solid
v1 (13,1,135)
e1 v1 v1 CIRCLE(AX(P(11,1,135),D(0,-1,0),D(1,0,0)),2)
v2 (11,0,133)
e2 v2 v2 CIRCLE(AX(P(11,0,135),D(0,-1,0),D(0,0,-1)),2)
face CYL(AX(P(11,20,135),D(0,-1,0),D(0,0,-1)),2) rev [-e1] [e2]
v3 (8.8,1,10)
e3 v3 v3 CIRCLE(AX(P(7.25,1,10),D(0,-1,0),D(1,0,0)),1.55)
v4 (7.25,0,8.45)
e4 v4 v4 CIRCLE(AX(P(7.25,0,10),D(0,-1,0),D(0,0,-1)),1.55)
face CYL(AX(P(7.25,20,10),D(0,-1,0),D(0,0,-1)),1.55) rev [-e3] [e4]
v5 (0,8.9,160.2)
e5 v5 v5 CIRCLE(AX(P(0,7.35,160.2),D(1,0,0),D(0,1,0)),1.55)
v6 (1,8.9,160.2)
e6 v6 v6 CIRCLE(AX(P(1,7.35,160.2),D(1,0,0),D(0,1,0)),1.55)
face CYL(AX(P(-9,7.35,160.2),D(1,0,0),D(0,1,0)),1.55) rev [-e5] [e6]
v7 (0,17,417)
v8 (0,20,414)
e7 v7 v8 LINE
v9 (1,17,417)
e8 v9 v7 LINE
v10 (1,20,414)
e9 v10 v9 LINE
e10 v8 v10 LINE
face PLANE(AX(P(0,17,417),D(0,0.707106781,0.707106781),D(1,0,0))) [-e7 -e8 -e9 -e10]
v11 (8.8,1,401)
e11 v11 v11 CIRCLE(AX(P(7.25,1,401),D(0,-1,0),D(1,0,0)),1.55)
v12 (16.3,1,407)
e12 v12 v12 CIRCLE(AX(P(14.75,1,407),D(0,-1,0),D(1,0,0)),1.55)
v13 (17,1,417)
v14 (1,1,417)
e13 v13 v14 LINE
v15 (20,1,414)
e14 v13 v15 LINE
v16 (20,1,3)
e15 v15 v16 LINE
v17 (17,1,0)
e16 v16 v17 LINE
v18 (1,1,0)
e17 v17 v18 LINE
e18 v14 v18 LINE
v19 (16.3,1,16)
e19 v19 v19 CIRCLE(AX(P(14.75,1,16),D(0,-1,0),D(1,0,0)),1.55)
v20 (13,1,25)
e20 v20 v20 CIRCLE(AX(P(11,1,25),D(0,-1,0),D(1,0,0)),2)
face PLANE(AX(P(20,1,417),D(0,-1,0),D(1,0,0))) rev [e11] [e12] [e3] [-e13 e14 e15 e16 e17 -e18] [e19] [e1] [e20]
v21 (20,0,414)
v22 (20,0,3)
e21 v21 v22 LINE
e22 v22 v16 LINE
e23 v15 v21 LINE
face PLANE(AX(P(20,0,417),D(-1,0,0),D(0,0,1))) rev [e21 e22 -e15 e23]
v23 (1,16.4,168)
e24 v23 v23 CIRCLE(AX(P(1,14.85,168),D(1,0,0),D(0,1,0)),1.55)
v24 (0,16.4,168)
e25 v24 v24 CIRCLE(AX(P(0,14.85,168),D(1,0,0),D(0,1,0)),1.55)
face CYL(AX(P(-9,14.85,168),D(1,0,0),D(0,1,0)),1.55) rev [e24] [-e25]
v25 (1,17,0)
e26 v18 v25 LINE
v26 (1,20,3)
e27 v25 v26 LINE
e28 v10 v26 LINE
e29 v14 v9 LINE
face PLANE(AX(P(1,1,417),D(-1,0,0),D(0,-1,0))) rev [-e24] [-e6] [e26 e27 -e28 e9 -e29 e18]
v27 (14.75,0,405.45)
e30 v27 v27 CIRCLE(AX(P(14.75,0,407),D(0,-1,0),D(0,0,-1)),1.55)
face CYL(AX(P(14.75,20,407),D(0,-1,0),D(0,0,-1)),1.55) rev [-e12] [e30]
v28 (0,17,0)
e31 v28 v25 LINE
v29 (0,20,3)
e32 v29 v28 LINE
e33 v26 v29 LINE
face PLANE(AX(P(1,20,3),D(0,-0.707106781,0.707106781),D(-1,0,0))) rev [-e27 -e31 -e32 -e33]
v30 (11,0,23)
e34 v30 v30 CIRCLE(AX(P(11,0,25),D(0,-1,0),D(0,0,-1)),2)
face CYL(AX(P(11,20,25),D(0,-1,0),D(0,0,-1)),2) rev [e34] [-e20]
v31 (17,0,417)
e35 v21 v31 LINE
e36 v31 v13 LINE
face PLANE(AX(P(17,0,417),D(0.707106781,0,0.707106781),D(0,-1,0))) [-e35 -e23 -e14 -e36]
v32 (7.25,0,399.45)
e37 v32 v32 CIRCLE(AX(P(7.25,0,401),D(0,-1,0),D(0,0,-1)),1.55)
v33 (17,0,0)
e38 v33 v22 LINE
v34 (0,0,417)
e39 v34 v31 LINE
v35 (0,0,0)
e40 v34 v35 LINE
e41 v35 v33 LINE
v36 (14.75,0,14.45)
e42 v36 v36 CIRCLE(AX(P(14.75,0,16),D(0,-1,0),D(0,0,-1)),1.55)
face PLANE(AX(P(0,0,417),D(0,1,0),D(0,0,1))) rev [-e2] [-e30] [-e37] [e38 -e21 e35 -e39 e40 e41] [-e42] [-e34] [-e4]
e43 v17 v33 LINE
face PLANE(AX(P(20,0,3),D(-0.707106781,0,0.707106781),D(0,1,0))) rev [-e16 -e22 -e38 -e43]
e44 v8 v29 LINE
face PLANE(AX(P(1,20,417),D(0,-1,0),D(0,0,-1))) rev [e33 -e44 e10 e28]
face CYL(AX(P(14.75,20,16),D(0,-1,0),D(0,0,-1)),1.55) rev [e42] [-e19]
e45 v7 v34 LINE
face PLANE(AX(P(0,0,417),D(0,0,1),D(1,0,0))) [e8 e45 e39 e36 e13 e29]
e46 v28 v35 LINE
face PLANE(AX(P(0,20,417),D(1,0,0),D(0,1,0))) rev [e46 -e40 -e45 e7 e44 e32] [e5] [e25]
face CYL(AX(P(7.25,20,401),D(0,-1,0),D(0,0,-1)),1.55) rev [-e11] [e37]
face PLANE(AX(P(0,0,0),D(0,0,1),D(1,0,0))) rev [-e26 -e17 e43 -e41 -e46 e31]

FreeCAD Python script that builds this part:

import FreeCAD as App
import Part
import Sketcher
from FreeCAD import Vector


def edges_at(feature, points):
    """Names of the edges that pass closest to the given points."""
    edges = feature.Shape.Edges
    near = lambda p: min(range(len(edges)), key=lambda i: edges[i].distToShape(Part.Vertex(*p))[0])
    return sorted({f"Edge{near(p) + 1}" for p in points})


def add_polygon(sketch, points):
    """Adds a closed chain of lines whose ends are joined by coincident constraints."""
    first, n = sketch.GeometryCount, len(points)
    for a, b in zip(points, points[1:] + points[:1]):
        sketch.addGeometry(Part.LineSegment(App.Vector(*a, 0), App.Vector(*b, 0)), False)
    for i in range(n):
        sketch.addConstraint(Sketcher.Constraint("Coincident", first + i, 2, first + (i + 1) % n, 1))

doc = App.newDocument("Part")
body = doc.addObject("PartDesign::Body", "Body")

# Sketch on XY plane
sketch1 = body.newObject("Sketcher::SketchObject", "Sketch")
sketch1.AttachmentSupport = (doc.getObject("XY_Plane"), [""])
sketch1.MapMode = "FlatFace"
add_polygon(sketch1, [(0, 0), (20, 0), (20, 1), (1, 1), (1, 20), (0, 20)])  # lines 0-5
sketch1.addConstraint(Sketcher.Constraint("Horizontal", 0))
sketch1.addConstraint(Sketcher.Constraint("Vertical", 1))
sketch1.addConstraint(Sketcher.Constraint("Horizontal", 2))
sketch1.addConstraint(Sketcher.Constraint("Vertical", 3))
sketch1.addConstraint(Sketcher.Constraint("Horizontal", 4))
sketch1.addConstraint(Sketcher.Constraint("Vertical", 5))
sketch1.addConstraint(Sketcher.Constraint("Coincident", 5, 2, -1, 1))
sketch1.addConstraint(Sketcher.Constraint("Equal", 4, 1))
sketch1.addConstraint(Sketcher.Constraint("Equal", 2, 3))
sketch1.addConstraint(Sketcher.Constraint("DistanceX", 0, 1, 0, 2, 20.0))
sketch1.addConstraint(Sketcher.Constraint("DistanceX", 2, 2, 2, 1, 19.0))
pad1 = body.newObject("PartDesign::Pad", "Pad")
pad1.Profile = sketch1
pad1.Length = 417
doc.recompute()

chamfer = body.newObject("PartDesign::Chamfer", "Chamfer")
chamfer.Base = (pad1, edges_at(pad1, [
    (20, 0.5, 417),
    (0.5, 20, 417),
    (0.5, 20, 0),
    (20, 0.5, 0),
]))
chamfer.Size = 3

# Sketch on YZ plane
sketch2 = body.newObject("Sketcher::SketchObject", "Sketch001")
sketch2.AttachmentSupport = (doc.getObject("YZ_Plane"), [""])
sketch2.MapMode = "FlatFace"
sketch2.AttachmentOffset = App.Placement(Vector(0, 0, 1), App.Rotation())
sketch2.addGeometry(Part.Circle(Vector(14.85, 168, 0), Vector(0, 0, 1), 1.55), False)
sketch2.addGeometry(Part.Circle(Vector(7.35, 160.2, 0), Vector(0, 0, 1), 1.55), False)
sketch2.addConstraint(Sketcher.Constraint("Equal", 0, 1))
sketch2.addConstraint(Sketcher.Constraint("Diameter", 0, 3.1))
sketch2.addConstraint(Sketcher.Constraint("DistanceY", -1, 1, 0, 3, 168.0))
sketch2.addConstraint(Sketcher.Constraint("DistanceY", -1, 1, 1, 3, 160.2))
sketch2.addConstraint(Sketcher.Constraint("DistanceX", 1, 3, 0, 3, 7.5))
sketch2.addConstraint(Sketcher.Constraint("DistanceX", -1, 1, 0, 3, 14.85))
pocket1 = body.newObject("PartDesign::Pocket", "Pocket")
pocket1.Profile = sketch2
pocket1.Length = 10

# Sketch on XZ plane
sketch3 = body.newObject("Sketcher::SketchObject", "Sketch002")
sketch3.AttachmentSupport = (doc.getObject("XZ_Plane"), [""])
sketch3.MapMode = "FlatFace"
sketch3.addGeometry(Part.Circle(Vector(7.25, 10, 0), Vector(0, 0, 1), 1.55), False)
sketch3.addGeometry(Part.Circle(Vector(14.75, 16, 0), Vector(0, 0, 1), 1.55), False)
sketch3.addGeometry(Part.Circle(Vector(7.25, 401, 0), Vector(0, 0, 1), 1.55), False)
sketch3.addGeometry(Part.Circle(Vector(14.75, 407, 0), Vector(0, 0, 1), 1.55), False)
sketch3.addConstraint(Sketcher.Constraint("Equal", 0, 1))
sketch3.addConstraint(Sketcher.Constraint("Equal", 1, 2))
sketch3.addConstraint(Sketcher.Constraint("Equal", 2, 3))
sketch3.addConstraint(Sketcher.Constraint("Vertical", 0, 3, 2, 3))
sketch3.addConstraint(Sketcher.Constraint("Vertical", 1, 3, 3, 3))
sketch3.addConstraint(Sketcher.Constraint("Diameter", 0, 3.1))
sketch3.addConstraint(Sketcher.Constraint("DistanceY", -1, 1, 0, 3, 10.0))
sketch3.addConstraint(Sketcher.Constraint("DistanceY", -1, 1, 1, 3, 16.0))
sketch3.addConstraint(Sketcher.Constraint("DistanceY", -1, 1, 2, 3, 401.0))
sketch3.addConstraint(Sketcher.Constraint("DistanceY", -1, 1, 3, 3, 407.0))
sketch3.addConstraint(Sketcher.Constraint("DistanceX", 0, 3, 1, 3, 7.5))
sketch3.addConstraint(Sketcher.Constraint("DistanceX", -1, 1, 0, 3, 7.25))
pocket2 = body.newObject("PartDesign::Pocket", "Pocket001")
pocket2.Profile = sketch3
pocket2.Type = "ThroughAll"

# Sketch on XZ plane
sketch4 = body.newObject("Sketcher::SketchObject", "Sketch003")
sketch4.AttachmentSupport = (doc.getObject("XZ_Plane"), [""])
sketch4.MapMode = "FlatFace"
sketch4.addGeometry(Part.Circle(Vector(11, 25, 0), Vector(0, 0, 1), 2), False)
sketch4.addGeometry(Part.Circle(Vector(11, 135, 0), Vector(0, 0, 1), 2), False)
sketch4.addConstraint(Sketcher.Constraint("Equal", 0, 1))
sketch4.addConstraint(Sketcher.Constraint("Vertical", 0, 3, 1, 3))
sketch4.addConstraint(Sketcher.Constraint("Diameter", 0, 4.0))
sketch4.addConstraint(Sketcher.Constraint("DistanceX", -1, 1, 0, 3, 11.0))
sketch4.addConstraint(Sketcher.Constraint("DistanceY", -1, 1, 0, 3, 25.0))
sketch4.addConstraint(Sketcher.Constraint("DistanceY", -1, 1, 1, 3, 135.0))
pocket3 = body.newObject("PartDesign::Pocket", "Pocket002")
pocket3.Profile = sketch4
pocket3.Type = "ThroughAll"

doc.recompute()
